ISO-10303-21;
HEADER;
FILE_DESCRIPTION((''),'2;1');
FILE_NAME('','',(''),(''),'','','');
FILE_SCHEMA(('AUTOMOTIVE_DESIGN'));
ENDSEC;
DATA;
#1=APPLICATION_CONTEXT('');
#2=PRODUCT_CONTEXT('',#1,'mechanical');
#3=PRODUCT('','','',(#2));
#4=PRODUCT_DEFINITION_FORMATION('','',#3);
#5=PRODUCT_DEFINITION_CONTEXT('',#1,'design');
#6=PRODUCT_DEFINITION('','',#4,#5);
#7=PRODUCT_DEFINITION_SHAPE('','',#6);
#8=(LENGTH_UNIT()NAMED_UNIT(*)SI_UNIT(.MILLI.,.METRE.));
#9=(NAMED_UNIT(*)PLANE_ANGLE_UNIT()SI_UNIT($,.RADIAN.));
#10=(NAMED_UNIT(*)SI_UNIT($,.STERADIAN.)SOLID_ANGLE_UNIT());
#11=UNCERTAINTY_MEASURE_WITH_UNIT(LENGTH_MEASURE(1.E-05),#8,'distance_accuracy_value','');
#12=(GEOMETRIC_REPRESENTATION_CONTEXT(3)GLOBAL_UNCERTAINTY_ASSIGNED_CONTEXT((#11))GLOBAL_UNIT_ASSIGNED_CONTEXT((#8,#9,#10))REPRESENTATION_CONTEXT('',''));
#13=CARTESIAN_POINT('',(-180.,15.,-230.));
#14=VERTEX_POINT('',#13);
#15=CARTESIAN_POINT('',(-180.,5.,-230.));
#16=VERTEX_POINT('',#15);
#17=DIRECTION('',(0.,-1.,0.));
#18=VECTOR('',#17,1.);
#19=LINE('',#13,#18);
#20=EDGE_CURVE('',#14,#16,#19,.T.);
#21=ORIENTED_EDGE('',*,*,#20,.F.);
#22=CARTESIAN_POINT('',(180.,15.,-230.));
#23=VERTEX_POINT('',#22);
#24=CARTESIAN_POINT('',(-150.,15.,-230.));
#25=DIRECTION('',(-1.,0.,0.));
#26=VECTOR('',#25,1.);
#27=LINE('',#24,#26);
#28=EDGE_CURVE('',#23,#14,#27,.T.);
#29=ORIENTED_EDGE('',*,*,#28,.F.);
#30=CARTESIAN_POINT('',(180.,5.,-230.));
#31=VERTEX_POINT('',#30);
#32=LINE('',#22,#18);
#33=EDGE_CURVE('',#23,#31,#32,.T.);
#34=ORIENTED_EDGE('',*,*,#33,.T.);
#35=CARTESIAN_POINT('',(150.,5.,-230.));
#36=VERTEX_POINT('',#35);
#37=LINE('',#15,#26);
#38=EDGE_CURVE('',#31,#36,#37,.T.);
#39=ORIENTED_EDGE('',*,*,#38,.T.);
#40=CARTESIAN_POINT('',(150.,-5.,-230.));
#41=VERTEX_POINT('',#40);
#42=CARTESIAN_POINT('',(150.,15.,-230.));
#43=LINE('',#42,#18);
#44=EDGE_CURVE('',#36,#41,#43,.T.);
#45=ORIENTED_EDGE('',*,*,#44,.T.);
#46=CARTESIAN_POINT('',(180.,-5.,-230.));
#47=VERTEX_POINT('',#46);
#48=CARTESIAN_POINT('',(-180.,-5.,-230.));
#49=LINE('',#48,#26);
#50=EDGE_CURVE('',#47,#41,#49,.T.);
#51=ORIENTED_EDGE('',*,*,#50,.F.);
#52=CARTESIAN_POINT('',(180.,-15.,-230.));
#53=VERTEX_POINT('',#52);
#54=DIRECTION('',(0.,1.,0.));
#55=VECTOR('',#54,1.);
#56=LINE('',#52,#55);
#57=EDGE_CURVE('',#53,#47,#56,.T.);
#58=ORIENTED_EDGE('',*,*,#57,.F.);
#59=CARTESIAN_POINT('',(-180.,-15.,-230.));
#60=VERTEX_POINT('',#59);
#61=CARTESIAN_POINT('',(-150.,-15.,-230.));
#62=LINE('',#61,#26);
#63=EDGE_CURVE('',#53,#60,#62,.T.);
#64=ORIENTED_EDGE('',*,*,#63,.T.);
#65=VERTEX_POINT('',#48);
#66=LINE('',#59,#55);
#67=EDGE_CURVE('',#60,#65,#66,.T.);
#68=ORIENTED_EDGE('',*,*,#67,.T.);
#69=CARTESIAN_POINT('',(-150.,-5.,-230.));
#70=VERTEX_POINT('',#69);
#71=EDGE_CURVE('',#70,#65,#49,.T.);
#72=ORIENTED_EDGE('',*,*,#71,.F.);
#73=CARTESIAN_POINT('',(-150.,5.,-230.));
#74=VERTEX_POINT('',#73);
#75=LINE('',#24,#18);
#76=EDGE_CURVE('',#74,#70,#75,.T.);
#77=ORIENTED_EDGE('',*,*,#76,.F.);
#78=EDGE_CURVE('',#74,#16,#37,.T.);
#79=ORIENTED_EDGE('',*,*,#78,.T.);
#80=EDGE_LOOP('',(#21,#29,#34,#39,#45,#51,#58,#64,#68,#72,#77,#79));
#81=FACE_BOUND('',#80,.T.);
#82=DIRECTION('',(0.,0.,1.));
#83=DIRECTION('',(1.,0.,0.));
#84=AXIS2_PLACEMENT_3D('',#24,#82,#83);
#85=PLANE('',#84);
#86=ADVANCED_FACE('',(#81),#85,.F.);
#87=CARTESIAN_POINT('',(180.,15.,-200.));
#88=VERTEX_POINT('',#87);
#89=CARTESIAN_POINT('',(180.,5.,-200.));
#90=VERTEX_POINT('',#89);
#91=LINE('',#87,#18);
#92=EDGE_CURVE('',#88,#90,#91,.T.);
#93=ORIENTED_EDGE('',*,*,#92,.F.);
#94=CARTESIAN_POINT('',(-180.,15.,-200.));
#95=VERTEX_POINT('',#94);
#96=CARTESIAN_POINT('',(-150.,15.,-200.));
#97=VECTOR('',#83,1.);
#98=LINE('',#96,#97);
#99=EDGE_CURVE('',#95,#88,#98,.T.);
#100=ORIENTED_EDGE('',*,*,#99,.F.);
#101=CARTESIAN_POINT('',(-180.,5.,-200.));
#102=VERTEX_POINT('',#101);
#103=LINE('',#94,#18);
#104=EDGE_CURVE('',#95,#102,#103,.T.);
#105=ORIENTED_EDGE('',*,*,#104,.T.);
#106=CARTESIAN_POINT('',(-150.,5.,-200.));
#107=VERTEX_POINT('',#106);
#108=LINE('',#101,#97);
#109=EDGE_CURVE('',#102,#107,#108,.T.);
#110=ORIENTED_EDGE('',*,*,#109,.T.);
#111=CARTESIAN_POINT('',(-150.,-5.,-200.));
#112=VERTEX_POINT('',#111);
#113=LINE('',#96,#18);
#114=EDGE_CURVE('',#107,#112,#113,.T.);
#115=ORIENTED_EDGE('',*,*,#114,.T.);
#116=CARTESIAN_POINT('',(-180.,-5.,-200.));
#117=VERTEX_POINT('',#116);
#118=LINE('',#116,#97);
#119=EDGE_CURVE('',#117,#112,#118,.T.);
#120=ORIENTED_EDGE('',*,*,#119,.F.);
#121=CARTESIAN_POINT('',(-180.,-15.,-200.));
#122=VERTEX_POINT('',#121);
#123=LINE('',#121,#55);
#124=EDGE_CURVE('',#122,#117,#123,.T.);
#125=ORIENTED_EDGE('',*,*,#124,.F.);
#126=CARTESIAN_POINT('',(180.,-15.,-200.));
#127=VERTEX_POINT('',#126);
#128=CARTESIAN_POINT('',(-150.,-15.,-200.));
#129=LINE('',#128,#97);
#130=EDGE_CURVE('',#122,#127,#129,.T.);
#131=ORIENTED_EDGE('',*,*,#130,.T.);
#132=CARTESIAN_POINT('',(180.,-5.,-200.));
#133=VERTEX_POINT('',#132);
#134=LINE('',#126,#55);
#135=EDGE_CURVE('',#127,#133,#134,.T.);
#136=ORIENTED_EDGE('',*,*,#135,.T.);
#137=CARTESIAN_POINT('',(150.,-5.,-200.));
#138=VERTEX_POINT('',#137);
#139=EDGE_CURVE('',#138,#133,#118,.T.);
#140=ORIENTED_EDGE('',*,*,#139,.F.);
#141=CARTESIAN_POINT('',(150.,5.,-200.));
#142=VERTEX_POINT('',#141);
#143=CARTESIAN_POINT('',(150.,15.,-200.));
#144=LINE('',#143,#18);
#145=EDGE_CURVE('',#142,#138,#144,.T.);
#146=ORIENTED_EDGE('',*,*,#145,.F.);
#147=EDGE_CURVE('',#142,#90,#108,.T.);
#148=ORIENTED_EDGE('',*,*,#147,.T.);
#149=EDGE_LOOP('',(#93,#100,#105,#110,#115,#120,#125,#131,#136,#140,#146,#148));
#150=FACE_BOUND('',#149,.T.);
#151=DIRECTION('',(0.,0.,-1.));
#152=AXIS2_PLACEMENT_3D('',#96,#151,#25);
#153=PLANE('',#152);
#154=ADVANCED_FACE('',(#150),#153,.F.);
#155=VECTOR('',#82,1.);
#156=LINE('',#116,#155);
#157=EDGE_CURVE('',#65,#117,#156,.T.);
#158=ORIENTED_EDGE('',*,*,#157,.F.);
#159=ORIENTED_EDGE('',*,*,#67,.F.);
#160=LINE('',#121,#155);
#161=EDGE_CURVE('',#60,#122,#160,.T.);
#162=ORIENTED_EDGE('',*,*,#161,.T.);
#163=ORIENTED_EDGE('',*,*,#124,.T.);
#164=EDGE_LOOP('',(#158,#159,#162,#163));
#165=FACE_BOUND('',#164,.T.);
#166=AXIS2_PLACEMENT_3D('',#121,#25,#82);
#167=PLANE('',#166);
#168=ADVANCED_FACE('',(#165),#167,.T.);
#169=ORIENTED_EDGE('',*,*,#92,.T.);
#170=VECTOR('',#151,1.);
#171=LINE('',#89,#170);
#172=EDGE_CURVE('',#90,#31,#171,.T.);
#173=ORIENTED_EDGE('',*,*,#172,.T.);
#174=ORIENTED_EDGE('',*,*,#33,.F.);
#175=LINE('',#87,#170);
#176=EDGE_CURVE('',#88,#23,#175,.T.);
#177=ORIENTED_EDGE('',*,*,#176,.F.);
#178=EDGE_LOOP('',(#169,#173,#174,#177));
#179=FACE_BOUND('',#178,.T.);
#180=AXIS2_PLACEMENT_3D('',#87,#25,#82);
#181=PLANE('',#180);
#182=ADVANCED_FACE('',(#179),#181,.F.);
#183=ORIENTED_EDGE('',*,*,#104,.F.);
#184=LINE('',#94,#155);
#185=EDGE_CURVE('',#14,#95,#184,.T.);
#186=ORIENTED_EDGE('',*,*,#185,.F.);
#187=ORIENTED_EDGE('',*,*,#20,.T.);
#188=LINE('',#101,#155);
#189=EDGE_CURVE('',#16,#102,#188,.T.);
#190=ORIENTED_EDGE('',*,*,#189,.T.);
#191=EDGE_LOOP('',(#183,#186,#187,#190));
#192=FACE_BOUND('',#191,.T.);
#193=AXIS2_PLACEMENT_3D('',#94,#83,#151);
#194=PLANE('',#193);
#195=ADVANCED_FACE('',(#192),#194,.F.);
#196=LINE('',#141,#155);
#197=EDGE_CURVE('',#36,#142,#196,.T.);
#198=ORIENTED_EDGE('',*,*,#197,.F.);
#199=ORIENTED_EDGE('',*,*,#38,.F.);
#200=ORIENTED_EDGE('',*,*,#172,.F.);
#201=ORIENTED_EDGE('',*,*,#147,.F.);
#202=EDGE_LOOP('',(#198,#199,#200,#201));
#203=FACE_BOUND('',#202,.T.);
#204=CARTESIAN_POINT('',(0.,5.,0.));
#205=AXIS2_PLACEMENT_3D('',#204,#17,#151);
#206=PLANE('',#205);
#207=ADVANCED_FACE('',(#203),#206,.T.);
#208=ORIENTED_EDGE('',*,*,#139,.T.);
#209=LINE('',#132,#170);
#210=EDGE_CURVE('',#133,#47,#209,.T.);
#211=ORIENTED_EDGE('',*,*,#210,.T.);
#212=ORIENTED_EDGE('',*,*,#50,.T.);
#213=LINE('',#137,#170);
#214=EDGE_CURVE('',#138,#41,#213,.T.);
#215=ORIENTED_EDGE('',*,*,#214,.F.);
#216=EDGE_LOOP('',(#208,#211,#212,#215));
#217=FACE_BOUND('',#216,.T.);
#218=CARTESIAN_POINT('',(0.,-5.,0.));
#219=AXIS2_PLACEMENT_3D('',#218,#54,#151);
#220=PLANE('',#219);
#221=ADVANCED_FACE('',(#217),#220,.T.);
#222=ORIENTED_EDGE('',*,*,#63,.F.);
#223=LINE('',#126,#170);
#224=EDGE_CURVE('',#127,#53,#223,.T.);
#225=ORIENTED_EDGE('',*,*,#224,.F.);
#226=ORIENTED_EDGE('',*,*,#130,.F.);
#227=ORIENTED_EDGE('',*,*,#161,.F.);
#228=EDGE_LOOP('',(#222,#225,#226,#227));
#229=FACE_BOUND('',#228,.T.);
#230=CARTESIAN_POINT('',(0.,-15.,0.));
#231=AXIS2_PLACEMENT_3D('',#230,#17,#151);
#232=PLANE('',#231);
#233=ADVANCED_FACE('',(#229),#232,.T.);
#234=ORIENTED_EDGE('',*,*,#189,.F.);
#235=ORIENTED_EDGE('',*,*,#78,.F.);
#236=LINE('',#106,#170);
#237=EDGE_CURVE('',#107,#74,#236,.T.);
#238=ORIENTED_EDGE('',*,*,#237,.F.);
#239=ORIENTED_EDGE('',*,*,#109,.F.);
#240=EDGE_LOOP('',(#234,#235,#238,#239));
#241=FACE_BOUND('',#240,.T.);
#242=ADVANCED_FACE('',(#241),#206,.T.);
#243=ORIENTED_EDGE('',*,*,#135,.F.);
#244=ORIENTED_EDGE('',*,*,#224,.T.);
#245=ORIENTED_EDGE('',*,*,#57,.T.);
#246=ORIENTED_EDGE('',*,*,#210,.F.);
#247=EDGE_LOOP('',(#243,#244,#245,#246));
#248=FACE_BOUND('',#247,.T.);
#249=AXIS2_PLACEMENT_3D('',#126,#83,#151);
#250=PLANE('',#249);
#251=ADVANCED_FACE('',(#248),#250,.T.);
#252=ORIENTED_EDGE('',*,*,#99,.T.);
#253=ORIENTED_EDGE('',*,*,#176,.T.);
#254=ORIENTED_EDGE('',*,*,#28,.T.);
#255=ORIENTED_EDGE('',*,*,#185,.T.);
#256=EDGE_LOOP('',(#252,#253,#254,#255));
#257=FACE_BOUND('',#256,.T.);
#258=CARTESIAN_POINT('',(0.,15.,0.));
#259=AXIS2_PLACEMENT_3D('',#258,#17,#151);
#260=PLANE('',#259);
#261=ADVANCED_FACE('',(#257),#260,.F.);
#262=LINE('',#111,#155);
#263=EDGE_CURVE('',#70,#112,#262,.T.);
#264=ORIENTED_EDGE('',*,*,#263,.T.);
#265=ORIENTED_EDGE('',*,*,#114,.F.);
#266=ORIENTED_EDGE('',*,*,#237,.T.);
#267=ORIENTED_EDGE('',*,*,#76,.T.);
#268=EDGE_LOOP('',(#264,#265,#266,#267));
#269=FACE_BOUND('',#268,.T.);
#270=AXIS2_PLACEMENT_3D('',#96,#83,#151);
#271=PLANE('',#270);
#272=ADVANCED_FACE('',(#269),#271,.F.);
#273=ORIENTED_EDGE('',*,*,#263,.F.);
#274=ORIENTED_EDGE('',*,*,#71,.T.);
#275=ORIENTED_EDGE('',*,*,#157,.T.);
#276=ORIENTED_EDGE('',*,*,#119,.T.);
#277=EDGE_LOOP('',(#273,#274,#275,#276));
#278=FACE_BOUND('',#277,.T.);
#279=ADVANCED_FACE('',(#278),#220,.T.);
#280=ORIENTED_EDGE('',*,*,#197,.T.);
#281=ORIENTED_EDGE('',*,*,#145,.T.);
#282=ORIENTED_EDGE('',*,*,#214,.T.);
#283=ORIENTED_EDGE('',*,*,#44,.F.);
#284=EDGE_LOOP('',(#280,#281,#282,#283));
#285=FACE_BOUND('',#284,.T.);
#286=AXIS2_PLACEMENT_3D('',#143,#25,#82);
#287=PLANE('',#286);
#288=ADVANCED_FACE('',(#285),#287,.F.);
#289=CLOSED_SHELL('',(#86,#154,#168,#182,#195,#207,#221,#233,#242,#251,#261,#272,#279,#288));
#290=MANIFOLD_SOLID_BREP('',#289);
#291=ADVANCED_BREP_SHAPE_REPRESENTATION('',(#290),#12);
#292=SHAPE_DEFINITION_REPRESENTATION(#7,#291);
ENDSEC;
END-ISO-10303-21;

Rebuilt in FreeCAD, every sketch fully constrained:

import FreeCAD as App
import Part
import Sketcher

V = App.Vector

doc = App.newDocument("Part")
body = doc.addObject("PartDesign::Body", "Body")

sketch1 = body.newObject("Sketcher::SketchObject", "Sketch")
sketch1.AttachmentSupport = (doc.getObject("XZ_Plane"), [""])
sketch1.MapMode = "FlatFace"
sketch1.addGeometry([
    Part.LineSegment(V(-150, -230, 0), V(-150, -200, 0)),
    Part.LineSegment(V(-150, -200, 0), V(150, -200, 0)),
    Part.LineSegment(V(150, -200, 0), V(150, -230, 0)),
    Part.LineSegment(V(150, -230, 0), V(-150, -230, 0)),
], False)
sketch1.addConstraint([
    Sketcher.Constraint("Coincident", 0, 2, 1, 1),
    Sketcher.Constraint("Coincident", 1, 2, 2, 1),
    Sketcher.Constraint("Coincident", 2, 2, 3, 1),
    Sketcher.Constraint("Coincident", 3, 2, 0, 1),
    Sketcher.Constraint("Vertical", 0),
    Sketcher.Constraint("Horizontal", 1),
    Sketcher.Constraint("Vertical", 2),
    Sketcher.Constraint("Horizontal", 3),
    Sketcher.Constraint("DistanceX", 1, 1, 1, 2, 300.0),
    Sketcher.Constraint("DistanceY", 0, 1, 0, 2, 30.0),
    Sketcher.Constraint("DistanceX", 0, 2, -1, 1, 150.0),
    Sketcher.Constraint("DistanceY", 0, 2, -1, 1, 200.0),
])
pad1 = body.newObject("PartDesign::Pad", "Pad")
pad1.Profile = sketch1
pad1.Length = 30
pad1.Midplane = True

sketch2 = body.newObject("Sketcher::SketchObject", "Sketch001")
sketch2.AttachmentSupport = (doc.getObject("XZ_Plane"), [""])
sketch2.MapMode = "FlatFace"
sketch2.AttachmentOffset = App.Placement(V(0, 0, -10), App.Rotation())
sketch2.addGeometry([
    Part.LineSegment(V(-180, -230, 0), V(-180, -200, 0)),
    Part.LineSegment(V(-180, -200, 0), V(180, -200, 0)),
    Part.LineSegment(V(180, -200, 0), V(180, -230, 0)),
    Part.LineSegment(V(180, -230, 0), V(-180, -230, 0)),
], False)
sketch2.addConstraint([
    Sketcher.Constraint("Coincident", 0, 2, 1, 1),
    Sketcher.Constraint("Coincident", 1, 2, 2, 1),
    Sketcher.Constraint("Coincident", 2, 2, 3, 1),
    Sketcher.Constraint("Coincident", 3, 2, 0, 1),
    Sketcher.Constraint("Vertical", 0),
    Sketcher.Constraint("Horizontal", 1),
    Sketcher.Constraint("Vertical", 2),
    Sketcher.Constraint("Horizontal", 3),
    Sketcher.Constraint("DistanceX", 1, 1, 1, 2, 360.0),
    Sketcher.Constraint("DistanceY", 0, 1, 0, 2, 30.0),
    Sketcher.Constraint("DistanceX", 0, 2, -1, 1, 180.0),
    Sketcher.Constraint("DistanceY", 0, 2, -1, 1, 200.0),
])
pad2 = body.newObject("PartDesign::Pad", "Pad001")
pad2.Profile = sketch2
pad2.Length = 10
pad2.Midplane = True
doc.recompute()

mirrored = body.newObject("PartDesign::Mirrored", "Mirrored")
mirrored.Originals = [pad2]
mirrored.MirrorPlane = (doc.getObject("XZ_Plane"), [""])
body.Tip = mirrored

doc.recompute()
